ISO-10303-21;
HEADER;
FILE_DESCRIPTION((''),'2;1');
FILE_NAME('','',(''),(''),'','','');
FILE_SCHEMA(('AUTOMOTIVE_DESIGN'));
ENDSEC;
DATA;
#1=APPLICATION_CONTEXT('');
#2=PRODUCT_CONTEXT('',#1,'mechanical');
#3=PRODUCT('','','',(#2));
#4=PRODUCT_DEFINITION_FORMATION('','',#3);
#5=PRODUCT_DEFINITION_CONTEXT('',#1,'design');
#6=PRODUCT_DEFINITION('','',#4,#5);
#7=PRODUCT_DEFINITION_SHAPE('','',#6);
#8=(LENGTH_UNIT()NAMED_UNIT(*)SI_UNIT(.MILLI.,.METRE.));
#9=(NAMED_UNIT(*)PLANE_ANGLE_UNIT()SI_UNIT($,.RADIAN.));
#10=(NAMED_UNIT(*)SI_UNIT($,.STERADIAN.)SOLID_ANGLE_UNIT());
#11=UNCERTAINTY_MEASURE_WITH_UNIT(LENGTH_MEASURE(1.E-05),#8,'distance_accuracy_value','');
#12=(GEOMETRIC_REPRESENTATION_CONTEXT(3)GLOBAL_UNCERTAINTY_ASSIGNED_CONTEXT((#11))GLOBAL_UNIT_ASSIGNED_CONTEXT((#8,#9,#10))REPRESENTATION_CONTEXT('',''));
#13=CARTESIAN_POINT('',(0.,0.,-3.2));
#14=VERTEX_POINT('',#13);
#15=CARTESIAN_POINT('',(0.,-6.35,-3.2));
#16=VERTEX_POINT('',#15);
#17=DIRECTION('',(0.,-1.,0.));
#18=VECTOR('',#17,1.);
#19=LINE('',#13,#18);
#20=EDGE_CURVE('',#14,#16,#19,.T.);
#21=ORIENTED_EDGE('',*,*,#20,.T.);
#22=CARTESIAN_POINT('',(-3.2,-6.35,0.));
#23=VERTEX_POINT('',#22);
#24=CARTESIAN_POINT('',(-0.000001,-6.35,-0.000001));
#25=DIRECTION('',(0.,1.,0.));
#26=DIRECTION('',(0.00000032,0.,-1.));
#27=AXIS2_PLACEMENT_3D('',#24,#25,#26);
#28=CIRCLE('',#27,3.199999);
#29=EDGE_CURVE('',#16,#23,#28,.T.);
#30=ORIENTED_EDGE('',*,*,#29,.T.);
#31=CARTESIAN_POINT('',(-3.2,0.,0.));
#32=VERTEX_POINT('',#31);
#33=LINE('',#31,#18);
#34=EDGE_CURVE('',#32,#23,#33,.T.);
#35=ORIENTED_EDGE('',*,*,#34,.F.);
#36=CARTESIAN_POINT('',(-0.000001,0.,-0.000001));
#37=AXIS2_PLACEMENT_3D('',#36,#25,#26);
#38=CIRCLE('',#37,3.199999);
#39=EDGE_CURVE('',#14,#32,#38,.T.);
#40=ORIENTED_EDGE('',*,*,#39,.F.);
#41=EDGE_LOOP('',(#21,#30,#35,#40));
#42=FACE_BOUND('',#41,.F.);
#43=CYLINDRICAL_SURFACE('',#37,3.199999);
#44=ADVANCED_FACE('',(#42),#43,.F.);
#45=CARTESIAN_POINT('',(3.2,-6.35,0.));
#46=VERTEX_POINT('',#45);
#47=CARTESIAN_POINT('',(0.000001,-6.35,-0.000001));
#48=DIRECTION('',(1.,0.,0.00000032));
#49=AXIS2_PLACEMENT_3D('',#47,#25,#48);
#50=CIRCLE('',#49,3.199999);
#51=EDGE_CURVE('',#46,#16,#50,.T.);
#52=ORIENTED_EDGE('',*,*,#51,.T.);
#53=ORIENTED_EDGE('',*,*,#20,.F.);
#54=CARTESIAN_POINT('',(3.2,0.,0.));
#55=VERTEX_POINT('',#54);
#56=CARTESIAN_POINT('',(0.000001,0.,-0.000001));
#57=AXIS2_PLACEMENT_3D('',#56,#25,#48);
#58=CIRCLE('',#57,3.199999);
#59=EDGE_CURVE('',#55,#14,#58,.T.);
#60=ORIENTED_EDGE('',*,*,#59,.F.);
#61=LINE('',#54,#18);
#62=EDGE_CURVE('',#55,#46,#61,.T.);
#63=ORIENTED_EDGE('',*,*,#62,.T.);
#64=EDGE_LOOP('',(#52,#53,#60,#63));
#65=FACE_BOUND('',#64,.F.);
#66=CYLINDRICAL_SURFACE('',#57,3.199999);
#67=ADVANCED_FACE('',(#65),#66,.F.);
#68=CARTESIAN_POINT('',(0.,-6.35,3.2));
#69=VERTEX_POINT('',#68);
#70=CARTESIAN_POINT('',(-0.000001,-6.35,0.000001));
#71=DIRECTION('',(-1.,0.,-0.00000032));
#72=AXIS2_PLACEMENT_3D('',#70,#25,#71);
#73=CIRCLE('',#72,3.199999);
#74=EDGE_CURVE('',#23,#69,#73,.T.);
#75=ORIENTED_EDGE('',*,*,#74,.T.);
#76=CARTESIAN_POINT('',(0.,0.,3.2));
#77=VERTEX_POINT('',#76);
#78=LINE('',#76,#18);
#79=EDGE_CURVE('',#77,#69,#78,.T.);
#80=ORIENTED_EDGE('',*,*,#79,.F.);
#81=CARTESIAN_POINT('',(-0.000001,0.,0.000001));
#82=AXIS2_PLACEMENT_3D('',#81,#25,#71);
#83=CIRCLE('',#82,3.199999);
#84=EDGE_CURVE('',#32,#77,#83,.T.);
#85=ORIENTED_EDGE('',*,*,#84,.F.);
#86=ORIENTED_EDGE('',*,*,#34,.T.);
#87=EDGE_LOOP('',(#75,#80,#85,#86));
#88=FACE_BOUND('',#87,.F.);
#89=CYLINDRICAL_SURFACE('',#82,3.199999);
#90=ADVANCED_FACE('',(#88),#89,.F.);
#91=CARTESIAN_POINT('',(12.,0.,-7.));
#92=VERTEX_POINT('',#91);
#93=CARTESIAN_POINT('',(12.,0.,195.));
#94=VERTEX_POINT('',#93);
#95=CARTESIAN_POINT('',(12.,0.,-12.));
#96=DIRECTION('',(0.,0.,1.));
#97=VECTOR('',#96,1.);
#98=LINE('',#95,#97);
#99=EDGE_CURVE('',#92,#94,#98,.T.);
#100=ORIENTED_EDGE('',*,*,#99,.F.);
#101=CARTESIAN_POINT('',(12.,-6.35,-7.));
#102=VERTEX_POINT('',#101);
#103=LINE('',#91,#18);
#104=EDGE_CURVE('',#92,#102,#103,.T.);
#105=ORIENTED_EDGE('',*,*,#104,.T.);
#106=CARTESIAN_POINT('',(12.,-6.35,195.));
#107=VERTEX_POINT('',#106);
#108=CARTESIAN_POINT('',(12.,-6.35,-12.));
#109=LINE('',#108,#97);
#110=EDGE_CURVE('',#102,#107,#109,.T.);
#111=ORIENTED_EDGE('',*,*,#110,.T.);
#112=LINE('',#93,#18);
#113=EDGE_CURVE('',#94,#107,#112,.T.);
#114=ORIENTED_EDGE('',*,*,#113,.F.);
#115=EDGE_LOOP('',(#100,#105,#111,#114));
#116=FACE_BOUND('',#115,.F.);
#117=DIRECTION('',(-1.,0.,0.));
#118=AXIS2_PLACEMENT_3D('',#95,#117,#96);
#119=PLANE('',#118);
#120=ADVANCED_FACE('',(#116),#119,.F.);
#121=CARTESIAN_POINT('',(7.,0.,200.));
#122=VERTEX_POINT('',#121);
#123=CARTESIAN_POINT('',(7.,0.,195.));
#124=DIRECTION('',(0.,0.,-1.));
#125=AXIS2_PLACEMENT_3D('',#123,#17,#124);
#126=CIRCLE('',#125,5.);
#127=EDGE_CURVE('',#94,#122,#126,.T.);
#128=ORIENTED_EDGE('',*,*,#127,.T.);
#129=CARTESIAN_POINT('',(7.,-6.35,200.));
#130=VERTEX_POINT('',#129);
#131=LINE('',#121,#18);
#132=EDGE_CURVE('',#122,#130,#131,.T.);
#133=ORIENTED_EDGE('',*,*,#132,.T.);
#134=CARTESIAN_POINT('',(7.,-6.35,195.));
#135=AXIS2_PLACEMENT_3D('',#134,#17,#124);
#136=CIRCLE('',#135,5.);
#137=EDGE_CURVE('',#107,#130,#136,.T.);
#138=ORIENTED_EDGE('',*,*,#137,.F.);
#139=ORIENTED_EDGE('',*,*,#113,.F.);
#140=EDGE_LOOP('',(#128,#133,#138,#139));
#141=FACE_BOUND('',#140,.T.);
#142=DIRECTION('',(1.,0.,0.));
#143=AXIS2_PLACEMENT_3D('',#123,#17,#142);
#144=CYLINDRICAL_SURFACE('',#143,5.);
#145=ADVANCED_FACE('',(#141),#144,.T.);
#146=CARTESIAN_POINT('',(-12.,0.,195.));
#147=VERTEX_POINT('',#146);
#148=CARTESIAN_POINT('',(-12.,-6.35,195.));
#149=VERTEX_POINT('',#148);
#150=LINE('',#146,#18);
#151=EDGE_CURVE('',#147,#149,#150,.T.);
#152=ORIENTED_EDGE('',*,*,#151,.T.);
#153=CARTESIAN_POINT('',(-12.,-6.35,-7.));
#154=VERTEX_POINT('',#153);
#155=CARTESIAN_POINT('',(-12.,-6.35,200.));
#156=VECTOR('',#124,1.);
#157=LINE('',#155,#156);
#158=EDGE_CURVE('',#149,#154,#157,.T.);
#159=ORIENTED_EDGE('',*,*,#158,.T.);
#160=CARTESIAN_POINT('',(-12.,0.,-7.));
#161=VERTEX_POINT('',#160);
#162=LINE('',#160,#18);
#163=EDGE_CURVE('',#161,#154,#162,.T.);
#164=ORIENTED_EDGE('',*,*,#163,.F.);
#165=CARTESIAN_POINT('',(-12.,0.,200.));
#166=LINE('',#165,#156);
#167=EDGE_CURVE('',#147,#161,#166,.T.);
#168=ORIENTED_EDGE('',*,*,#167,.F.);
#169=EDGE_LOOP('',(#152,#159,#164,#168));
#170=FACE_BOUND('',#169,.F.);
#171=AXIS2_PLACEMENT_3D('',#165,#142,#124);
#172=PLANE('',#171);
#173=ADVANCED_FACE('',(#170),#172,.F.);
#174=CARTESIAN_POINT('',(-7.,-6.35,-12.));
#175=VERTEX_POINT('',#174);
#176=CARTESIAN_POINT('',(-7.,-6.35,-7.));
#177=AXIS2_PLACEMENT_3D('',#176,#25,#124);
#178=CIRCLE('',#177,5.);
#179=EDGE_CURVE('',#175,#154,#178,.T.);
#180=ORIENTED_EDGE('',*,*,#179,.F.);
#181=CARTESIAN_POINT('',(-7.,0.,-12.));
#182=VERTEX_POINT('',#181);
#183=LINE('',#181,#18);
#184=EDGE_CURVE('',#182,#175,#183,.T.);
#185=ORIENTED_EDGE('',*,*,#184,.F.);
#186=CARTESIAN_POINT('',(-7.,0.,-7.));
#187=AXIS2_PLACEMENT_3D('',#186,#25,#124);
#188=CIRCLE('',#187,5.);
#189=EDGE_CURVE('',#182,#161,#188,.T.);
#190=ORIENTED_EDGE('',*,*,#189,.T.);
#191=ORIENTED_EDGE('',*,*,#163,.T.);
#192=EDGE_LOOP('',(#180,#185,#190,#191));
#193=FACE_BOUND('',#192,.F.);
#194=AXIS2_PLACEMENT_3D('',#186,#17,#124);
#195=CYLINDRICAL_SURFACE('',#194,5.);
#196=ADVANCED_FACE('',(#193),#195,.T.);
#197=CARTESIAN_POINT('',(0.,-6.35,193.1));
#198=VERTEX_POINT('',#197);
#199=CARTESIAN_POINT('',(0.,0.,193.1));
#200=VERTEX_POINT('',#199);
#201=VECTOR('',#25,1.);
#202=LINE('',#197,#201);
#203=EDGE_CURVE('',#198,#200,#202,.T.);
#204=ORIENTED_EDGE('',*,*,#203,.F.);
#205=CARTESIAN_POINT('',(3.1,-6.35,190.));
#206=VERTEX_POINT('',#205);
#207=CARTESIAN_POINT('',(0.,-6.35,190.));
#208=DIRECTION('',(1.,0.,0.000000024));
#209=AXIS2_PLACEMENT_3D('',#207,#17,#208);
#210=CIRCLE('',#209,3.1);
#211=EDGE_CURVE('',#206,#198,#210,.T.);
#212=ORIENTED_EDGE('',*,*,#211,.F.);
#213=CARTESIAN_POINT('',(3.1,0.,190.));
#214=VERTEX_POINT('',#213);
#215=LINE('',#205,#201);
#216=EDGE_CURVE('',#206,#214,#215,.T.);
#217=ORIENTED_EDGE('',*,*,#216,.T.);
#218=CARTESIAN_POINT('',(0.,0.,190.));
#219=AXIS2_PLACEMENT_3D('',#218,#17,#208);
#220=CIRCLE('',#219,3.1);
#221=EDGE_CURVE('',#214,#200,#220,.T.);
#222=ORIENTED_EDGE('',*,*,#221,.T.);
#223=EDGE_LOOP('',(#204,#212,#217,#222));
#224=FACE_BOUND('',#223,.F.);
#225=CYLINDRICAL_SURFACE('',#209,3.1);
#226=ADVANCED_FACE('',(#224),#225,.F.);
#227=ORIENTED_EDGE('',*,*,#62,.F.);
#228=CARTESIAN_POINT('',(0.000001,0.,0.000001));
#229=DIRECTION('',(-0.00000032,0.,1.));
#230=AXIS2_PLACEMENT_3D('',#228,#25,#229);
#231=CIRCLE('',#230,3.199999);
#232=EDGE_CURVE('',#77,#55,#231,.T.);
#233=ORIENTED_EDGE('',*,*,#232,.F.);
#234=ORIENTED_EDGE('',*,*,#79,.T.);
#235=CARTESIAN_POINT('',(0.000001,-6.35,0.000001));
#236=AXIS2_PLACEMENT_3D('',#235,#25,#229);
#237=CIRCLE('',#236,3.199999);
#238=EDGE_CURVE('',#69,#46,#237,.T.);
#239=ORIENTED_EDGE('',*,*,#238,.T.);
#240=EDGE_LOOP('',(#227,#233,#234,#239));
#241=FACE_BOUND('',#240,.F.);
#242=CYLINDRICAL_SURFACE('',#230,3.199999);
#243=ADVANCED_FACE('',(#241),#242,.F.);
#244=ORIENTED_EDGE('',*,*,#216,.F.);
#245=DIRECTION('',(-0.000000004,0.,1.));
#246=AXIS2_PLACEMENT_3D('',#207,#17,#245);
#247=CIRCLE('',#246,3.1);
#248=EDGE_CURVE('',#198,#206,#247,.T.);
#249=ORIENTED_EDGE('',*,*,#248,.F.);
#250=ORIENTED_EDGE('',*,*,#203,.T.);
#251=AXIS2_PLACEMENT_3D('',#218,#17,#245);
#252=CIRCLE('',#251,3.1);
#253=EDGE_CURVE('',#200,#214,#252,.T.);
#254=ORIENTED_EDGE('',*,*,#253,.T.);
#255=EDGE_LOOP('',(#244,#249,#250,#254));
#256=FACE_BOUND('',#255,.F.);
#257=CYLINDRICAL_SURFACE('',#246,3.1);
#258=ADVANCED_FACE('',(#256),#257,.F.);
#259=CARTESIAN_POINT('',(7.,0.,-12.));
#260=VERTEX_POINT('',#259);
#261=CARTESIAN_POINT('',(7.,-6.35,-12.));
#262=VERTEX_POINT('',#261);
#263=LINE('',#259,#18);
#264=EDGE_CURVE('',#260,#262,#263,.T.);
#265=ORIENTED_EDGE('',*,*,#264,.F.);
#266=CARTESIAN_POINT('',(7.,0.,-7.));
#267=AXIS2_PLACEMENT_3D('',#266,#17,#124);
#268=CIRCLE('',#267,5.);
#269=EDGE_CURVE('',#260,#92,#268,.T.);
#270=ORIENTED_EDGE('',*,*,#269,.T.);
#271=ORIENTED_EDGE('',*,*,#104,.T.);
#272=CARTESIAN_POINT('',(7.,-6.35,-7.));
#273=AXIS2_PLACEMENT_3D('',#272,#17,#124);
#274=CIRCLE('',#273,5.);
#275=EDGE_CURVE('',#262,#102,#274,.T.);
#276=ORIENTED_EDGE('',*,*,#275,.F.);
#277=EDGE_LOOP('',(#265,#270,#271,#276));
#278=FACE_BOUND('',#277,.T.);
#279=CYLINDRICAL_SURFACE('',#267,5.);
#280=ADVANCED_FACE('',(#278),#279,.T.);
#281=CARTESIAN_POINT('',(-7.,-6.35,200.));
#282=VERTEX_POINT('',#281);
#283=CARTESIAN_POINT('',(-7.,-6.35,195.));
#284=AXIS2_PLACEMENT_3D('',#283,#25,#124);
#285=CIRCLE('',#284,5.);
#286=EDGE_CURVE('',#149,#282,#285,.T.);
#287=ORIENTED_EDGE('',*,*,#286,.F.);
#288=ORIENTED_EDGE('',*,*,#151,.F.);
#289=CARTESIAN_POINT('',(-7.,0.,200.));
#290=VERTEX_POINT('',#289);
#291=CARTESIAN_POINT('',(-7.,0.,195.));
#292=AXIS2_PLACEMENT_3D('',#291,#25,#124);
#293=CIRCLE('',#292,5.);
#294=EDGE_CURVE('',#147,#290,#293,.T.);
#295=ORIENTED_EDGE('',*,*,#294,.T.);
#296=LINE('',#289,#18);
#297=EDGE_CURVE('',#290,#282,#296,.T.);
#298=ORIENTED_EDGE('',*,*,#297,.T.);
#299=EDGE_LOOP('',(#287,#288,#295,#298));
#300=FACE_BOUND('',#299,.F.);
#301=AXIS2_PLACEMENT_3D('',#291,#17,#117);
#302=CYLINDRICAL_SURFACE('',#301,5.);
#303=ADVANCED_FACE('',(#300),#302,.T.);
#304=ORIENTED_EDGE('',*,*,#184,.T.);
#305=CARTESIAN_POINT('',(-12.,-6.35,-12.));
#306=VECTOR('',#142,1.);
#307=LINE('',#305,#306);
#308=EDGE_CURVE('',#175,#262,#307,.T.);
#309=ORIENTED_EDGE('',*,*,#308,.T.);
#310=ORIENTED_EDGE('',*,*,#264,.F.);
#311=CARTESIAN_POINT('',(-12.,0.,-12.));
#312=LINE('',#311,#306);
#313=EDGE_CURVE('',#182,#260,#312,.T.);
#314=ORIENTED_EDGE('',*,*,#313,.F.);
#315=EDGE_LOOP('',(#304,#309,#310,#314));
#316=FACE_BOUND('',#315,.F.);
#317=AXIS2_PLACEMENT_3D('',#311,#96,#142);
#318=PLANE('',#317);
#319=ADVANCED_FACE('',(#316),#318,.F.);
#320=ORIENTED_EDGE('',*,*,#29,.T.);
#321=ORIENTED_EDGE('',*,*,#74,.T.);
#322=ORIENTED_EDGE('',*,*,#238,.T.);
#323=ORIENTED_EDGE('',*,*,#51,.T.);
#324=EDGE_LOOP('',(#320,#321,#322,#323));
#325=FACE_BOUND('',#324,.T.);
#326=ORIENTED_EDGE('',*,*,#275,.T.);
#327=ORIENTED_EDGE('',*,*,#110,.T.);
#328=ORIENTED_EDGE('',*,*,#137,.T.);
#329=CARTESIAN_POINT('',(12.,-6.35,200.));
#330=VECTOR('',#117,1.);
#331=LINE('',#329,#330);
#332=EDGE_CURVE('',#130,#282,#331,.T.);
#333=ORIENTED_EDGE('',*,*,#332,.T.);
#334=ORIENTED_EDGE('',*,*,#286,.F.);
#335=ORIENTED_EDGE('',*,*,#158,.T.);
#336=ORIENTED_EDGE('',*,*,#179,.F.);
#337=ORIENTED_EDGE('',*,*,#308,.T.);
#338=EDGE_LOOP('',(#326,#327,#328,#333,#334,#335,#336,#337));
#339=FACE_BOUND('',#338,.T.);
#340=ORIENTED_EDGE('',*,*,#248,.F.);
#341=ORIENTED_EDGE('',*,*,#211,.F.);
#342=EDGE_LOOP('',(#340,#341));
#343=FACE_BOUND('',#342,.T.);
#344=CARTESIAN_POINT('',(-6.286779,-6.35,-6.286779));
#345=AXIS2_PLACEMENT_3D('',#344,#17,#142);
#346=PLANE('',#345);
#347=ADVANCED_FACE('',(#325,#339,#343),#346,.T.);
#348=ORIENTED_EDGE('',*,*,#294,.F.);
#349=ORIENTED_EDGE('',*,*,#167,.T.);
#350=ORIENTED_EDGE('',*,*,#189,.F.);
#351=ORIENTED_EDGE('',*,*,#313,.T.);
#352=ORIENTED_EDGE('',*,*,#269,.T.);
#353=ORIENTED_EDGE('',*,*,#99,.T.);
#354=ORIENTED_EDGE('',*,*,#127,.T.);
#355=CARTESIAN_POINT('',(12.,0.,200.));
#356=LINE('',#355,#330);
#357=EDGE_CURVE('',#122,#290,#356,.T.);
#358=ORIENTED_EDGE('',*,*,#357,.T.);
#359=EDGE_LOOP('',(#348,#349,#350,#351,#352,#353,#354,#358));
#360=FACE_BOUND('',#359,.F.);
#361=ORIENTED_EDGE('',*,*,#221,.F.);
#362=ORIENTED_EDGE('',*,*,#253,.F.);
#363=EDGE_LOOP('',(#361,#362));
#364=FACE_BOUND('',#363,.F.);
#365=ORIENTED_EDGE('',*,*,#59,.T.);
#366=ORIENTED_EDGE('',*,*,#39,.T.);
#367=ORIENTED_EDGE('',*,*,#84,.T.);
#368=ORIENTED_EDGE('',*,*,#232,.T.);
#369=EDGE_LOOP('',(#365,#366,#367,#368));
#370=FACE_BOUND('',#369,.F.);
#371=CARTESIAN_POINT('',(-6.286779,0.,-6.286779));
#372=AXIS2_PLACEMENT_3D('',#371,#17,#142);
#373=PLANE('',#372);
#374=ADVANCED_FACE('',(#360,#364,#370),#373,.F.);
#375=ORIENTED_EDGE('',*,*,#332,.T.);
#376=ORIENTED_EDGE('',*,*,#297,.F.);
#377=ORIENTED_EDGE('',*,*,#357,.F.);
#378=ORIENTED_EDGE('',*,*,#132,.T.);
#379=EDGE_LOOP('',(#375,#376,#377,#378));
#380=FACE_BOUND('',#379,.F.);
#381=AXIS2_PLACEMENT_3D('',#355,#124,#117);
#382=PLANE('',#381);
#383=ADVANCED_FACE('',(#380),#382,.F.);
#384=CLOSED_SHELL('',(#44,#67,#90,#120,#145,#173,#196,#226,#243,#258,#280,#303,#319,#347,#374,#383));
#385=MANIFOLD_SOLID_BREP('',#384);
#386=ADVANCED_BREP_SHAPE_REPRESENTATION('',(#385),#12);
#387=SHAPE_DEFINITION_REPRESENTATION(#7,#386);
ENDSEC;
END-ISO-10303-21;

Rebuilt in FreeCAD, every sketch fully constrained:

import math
import FreeCAD as App
import Part
import Sketcher

V = App.Vector


def edges_at(feature, points):
    """Names of the edges that pass closest to the given points."""
    edges = feature.Shape.Edges
    near = lambda p: min(range(len(edges)), key=lambda i: edges[i].distToShape(Part.Vertex(*p))[0])
    return sorted({f"Edge{near(p) + 1}" for p in points})

doc = App.newDocument("Part")
body = doc.addObject("PartDesign::Body", "Body")

# Sketch on XZ plane
sketch1 = doc.addObject("Sketcher::SketchObject", "Sketch")
body.addObject(sketch1)
sketch1.AttachmentSupport = (doc.XZ_Plane, [""])
sketch1.MapMode = "FlatFace"
sketch1.addGeometry([
    Part.LineSegment(V(-12, -12, 0), V(12, -12, 0)),  # 0
    Part.LineSegment(V(12, -12, 0), V(12, 200, 0)),  # 1
    Part.LineSegment(V(12, 200, 0), V(-12, 200, 0)),  # 2
    Part.LineSegment(V(-12, 200, 0), V(-12, -12, 0)),  # 3
    Part.ArcOfCircle(Part.Circle(V(-0.000001, -0.000001, 0), V(0, 0, 1), 3.199999), math.radians(179.999982), math.radians(270.000018)),  # 4
    Part.ArcOfCircle(Part.Circle(V(-0.000001, 0.000001, 0), V(0, 0, 1), 3.199999), math.radians(89.999982), math.radians(180.000018)),  # 5
    Part.ArcOfCircle(Part.Circle(V(0.000001, 0.000001, 0), V(0, 0, 1), 3.199999), math.radians(-0.000018), math.radians(90.000018)),  # 6
    Part.ArcOfCircle(Part.Circle(V(0.000001, -0.000001, 0), V(0, 0, 1), 3.199999), math.radians(-90.000018), math.radians(0.000018)),  # 7
], False)
sketch1.addConstraint([
    Sketcher.Constraint("Coincident", 0, 2, 1, 1),
    Sketcher.Constraint("Coincident", 1, 2, 2, 1),
    Sketcher.Constraint("Coincident", 2, 2, 3, 1),
    Sketcher.Constraint("Coincident", 3, 2, 0, 1),
    Sketcher.Constraint("Tangent", 4, 1, 5, 2),
    Sketcher.Constraint("Tangent", 5, 1, 6, 2),
    Sketcher.Constraint("Tangent", 6, 1, 7, 2),
    Sketcher.Constraint("Tangent", 7, 1, 4, 2),
    Sketcher.Constraint("Horizontal", 0),
    Sketcher.Constraint("Vertical", 1),
    Sketcher.Constraint("Horizontal", 2),
    Sketcher.Constraint("Vertical", 3),
    Sketcher.Constraint("Coincident", 4, 3, -1, 1),
    Sketcher.Constraint("Equal", 4, 5),
    Sketcher.Constraint("PointOnObject", 4, 1, -1),
    Sketcher.Constraint("PointOnObject", 5, 1, -2),
    Sketcher.Constraint("PointOnObject", 6, 1, -1),
    Sketcher.Constraint("PointOnObject", 7, 1, -2),
    Sketcher.Constraint("Radius", 4, 3.199999),
    Sketcher.Constraint("DistanceX", 0, 1, 0, 2, 24.0),
    Sketcher.Constraint("DistanceY", 1, 1, 1, 2, 212.0),
    Sketcher.Constraint("DistanceX", -1, 1, 0, 2, 12.0),
    Sketcher.Constraint("DistanceY", 0, 2, -1, 1, 12.0),
])
pad1 = doc.addObject("PartDesign::Pad", "Pad")
body.addObject(pad1)
pad1.Profile = sketch1
pad1.Length = 6.35

# Sketch on XZ plane
sketch2 = doc.addObject("Sketcher::SketchObject", "Sketch001")
body.addObject(sketch2)
sketch2.AttachmentSupport = (doc.XZ_Plane, [""])
sketch2.MapMode = "FlatFace"
sketch2.AttachmentOffset = App.Placement(V(0, 0, 6.35), App.Rotation())
sketch2.addGeometry([
    Part.ArcOfCircle(Part.Circle(V(0, 190, 0), V(0, 0, 1), 3.1), math.radians(90), math.radians(360)),
    Part.ArcOfCircle(Part.Circle(V(0, 190, 0), V(0, 0, 1), 3.1), math.radians(0.000001), math.radians(89.999999)),
], False)
sketch2.addConstraint([
    Sketcher.Constraint("Tangent", 0, 1, 1, 2),
    Sketcher.Constraint("Coincident", 1, 1, 0, 2),
    Sketcher.Constraint("PointOnObject", 0, 3, -2),
    Sketcher.Constraint("PointOnObject", 0, 1, -2),
    Sketcher.Constraint("Horizontal", 0, 3, 1, 1),
    Sketcher.Constraint("Radius", 0, 3.1),
    Sketcher.Constraint("DistanceY", -1, 1, 0, 3, 190.0),
])
pocket1 = doc.addObject("PartDesign::Pocket", "Pocket")
body.addObject(pocket1)
pocket1.Profile = sketch2
pocket1.Length = 25
doc.recompute()

fillet = doc.addObject("PartDesign::Fillet", "Fillet")
body.addObject(fillet)
fillet.Base = (pocket1, edges_at(pocket1, [
    (12, -3.175, 200),
    (-12, -3.175, 200),
    (12, -3.175, -12),
    (-12, -3.175, -12),
]))
fillet.Radius = 5

doc.recompute()
